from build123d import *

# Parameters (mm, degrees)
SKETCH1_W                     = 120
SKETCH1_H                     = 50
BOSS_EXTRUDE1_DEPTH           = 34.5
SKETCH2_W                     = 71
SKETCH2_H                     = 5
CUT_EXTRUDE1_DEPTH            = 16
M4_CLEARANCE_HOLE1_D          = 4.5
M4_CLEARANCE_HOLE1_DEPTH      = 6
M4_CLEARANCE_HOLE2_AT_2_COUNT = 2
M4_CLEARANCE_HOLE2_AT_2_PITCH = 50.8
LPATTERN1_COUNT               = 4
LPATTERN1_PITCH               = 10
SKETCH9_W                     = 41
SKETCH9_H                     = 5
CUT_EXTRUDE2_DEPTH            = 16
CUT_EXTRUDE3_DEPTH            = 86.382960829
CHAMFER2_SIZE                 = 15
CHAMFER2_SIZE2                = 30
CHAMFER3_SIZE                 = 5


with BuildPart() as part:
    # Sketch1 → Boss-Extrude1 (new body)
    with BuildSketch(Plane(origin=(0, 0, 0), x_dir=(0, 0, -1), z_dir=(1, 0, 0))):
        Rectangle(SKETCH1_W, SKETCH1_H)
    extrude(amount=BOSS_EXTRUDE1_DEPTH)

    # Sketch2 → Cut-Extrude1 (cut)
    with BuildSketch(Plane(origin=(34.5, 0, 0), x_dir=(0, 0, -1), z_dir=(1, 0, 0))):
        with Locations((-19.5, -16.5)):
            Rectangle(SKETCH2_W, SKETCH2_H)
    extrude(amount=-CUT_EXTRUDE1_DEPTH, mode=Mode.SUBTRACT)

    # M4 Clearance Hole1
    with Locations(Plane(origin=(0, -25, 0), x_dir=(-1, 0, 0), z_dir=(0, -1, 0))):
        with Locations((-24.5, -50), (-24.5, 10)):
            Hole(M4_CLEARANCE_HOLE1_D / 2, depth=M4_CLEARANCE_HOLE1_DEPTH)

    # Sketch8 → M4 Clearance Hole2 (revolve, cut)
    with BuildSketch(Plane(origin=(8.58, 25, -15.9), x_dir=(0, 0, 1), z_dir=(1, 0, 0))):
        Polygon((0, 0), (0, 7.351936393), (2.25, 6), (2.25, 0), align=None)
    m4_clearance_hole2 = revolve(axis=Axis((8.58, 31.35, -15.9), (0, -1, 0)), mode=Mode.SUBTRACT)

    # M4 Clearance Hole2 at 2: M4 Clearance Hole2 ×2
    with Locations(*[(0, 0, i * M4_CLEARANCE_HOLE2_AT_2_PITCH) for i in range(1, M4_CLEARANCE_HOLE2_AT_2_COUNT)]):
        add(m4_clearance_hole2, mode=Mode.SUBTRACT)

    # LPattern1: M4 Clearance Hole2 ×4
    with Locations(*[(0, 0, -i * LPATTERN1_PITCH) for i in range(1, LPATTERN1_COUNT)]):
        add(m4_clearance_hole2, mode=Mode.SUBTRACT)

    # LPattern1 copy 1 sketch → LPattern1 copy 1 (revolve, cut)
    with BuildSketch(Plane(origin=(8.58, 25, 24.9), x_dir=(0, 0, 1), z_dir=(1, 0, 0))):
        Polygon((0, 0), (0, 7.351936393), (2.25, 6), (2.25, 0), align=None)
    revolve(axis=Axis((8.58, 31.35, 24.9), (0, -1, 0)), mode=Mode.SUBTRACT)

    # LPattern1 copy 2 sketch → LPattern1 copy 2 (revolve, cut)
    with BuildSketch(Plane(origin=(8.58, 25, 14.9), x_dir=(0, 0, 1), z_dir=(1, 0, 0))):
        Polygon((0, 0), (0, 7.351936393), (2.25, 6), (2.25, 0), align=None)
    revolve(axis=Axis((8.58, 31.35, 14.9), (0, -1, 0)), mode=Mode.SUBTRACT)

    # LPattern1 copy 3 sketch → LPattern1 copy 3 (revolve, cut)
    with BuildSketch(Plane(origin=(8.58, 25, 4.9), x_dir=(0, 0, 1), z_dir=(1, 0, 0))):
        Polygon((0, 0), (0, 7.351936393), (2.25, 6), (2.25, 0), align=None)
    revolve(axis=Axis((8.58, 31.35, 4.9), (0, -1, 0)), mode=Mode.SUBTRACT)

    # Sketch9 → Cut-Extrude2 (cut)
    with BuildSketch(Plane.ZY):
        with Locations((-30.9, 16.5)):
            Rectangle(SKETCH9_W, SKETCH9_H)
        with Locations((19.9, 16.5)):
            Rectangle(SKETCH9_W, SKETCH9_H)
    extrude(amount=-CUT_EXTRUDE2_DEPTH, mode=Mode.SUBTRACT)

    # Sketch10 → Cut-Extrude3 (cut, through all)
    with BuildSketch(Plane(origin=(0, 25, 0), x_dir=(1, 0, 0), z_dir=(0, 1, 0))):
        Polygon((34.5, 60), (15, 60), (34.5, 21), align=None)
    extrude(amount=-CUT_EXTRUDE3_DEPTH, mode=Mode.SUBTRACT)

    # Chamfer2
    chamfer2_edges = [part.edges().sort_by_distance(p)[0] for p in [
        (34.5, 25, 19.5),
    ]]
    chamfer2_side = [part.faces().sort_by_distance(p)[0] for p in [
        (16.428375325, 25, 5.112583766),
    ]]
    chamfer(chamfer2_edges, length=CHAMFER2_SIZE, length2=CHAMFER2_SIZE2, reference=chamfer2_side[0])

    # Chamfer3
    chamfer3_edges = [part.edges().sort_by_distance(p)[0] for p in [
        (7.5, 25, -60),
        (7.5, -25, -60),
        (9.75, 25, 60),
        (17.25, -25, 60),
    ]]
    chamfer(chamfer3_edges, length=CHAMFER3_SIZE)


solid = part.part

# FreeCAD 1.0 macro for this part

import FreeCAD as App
import Part
import Sketcher

V = App.Vector
Q = App.Units.Quantity


def edges_at(feature, points):
    """Names of the edges that pass closest to the given points."""
    edges = feature.Shape.Edges
    near = lambda p: min(range(len(edges)), key=lambda i: edges[i].distToShape(Part.Vertex(*p))[0])
    return sorted({f"Edge{near(p) + 1}" for p in points})

doc = App.newDocument("Part")
body = doc.addObject("PartDesign::Body", "Body")

sketch1 = body.newObject("Sketcher::SketchObject", "Sketch")
sketch1.AttachmentSupport = (doc.getObject("YZ_Plane"), [""])
sketch1.MapMode = "FlatFace"
sketch1.addGeometry(Part.LineSegment(V(25, 60, 0), V(-25, 60, 0)), False)
sketch1.addGeometry(Part.LineSegment(V(-25, 60, 0), V(-25, -60, 0)), False)
sketch1.addGeometry(Part.LineSegment(V(-25, -60, 0), V(25, -60, 0)), False)
sketch1.addGeometry(Part.LineSegment(V(25, -60, 0), V(25, 60, 0)), False)
sketch1.addConstraint(Sketcher.Constraint("Coincident", 0, 2, 1, 1))
sketch1.addConstraint(Sketcher.Constraint("Coincident", 1, 2, 2, 1))
sketch1.addConstraint(Sketcher.Constraint("Coincident", 2, 2, 3, 1))
sketch1.addConstraint(Sketcher.Constraint("Coincident", 3, 2, 0, 1))
sketch1.addConstraint(Sketcher.Constraint("Horizontal", 0))
sketch1.addConstraint(Sketcher.Constraint("Vertical", 1))
sketch1.addConstraint(Sketcher.Constraint("Horizontal", 2))
sketch1.addConstraint(Sketcher.Constraint("Vertical", 3))
sketch1.addConstraint(Sketcher.Constraint("Symmetric", 0, 2, 2, 2, -1, 1))
sketch1.addConstraint(Sketcher.Constraint("DistanceX", 0, 2, 0, 1, Q("50 mm")))
sketch1.addConstraint(Sketcher.Constraint("DistanceY", 1, 2, 1, 1, Q("120 mm")))
pad1 = body.newObject("PartDesign::Pad", "Pad")
pad1.Profile = sketch1
pad1.Length = 34.5

sketch2 = body.newObject("Sketcher::SketchObject", "Sketch001")
sketch2.AttachmentSupport = (doc.getObject("YZ_Plane"), [""])
sketch2.MapMode = "FlatFace"
sketch2.AttachmentOffset = App.Placement(V(0, 0, 34.5), App.Rotation())
sketch2.addGeometry(Part.LineSegment(V(-14, 55, 0), V(-19, 55, 0)), False)
sketch2.addGeometry(Part.LineSegment(V(-19, 55, 0), V(-19, -16, 0)), False)
sketch2.addGeometry(Part.LineSegment(V(-19, -16, 0), V(-14, -16, 0)), False)
sketch2.addGeometry(Part.LineSegment(V(-14, -16, 0), V(-14, 55, 0)), False)
sketch2.addConstraint(Sketcher.Constraint("Coincident", 0, 2, 1, 1))
sketch2.addConstraint(Sketcher.Constraint("Coincident", 1, 2, 2, 1))
sketch2.addConstraint(Sketcher.Constraint("Coincident", 2, 2, 3, 1))
sketch2.addConstraint(Sketcher.Constraint("Coincident", 3, 2, 0, 1))
sketch2.addConstraint(Sketcher.Constraint("Horizontal", 0))
sketch2.addConstraint(Sketcher.Constraint("Vertical", 1))
sketch2.addConstraint(Sketcher.Constraint("Horizontal", 2))
sketch2.addConstraint(Sketcher.Constraint("Vertical", 3))
sketch2.addConstraint(Sketcher.Constraint("DistanceX", 0, 2, 0, 1, Q("5 mm")))
sketch2.addConstraint(Sketcher.Constraint("DistanceY", 1, 2, 1, 1, Q("71 mm")))
sketch2.addConstraint(Sketcher.Constraint("DistanceX", 0, 2, -1, 1, Q("19 mm")))
sketch2.addConstraint(Sketcher.Constraint("DistanceY", -1, 1, 0, 2, Q("55 mm")))
pocket1 = body.newObject("PartDesign::Pocket", "Pocket")
pocket1.Profile = sketch2
pocket1.Length = 16

sketch3 = body.newObject("Sketcher::SketchObject", "Sketch002")
sketch3.AttachmentSupport = (doc.getObject("XZ_Plane"), [""])
sketch3.MapMode = "FlatFace"
sketch3.AttachmentOffset = App.Placement(V(0, 0, 25), App.Rotation())
sketch3.addGeometry(Part.Circle(V(24.5, 50, 0), V(0, 0, 1), 2.2), False)
sketch3.addGeometry(Part.Circle(V(24.5, -10, 0), V(0, 0, 1), 2.2), False)
sketch3.addConstraint(Sketcher.Constraint("Equal", 0, 1))
sketch3.addConstraint(Sketcher.Constraint("Vertical", 0, 3, 1, 3))
sketch3.addConstraint(Sketcher.Constraint("Diameter", 0, Q("4.5 mm")))
sketch3.addConstraint(Sketcher.Constraint("DistanceY", -1, 1, 0, 3, Q("50 mm")))
sketch3.addConstraint(Sketcher.Constraint("DistanceY", 1, 3, -1, 1, Q("10 mm")))
sketch3.addConstraint(Sketcher.Constraint("DistanceX", -1, 1, 0, 3, Q("24.5 mm")))
doc.recompute()
hole = body.newObject("PartDesign::Hole", "Hole")
hole.Profile = sketch3
hole.ThreadType = "None"
hole.Diameter = 4.5
hole.DepthType = "Dimension"
hole.Depth = 6
hole.DrillPoint = "Flat"

sketch4 = body.newObject("Sketcher::SketchObject", "Sketch003")
sketch4.AttachmentSupport = (doc.getObject("YZ_Plane"), [""])
sketch4.MapMode = "FlatFace"
sketch4.AttachmentOffset = App.Placement(V(0, 0, 8.58), App.Rotation())
sketch4.addGeometry(Part.LineSegment(V(17.6, -15.9, 0), V(25, -15.9, 0)), False)
sketch4.addGeometry(Part.LineSegment(V(25, -15.9, 0), V(25, -13.7, 0)), False)
sketch4.addGeometry(Part.LineSegment(V(25, -13.7, 0), V(19, -13.7, 0)), False)
sketch4.addGeometry(Part.LineSegment(V(19, -13.7, 0), V(17.6, -15.9, 0)), False)
sketch4.addGeometry(Part.LineSegment(V(25, -15.9, 0), V(17.6, -15.9, 0)), True)
sketch4.addConstraint(Sketcher.Constraint("Coincident", 0, 2, 1, 1))
sketch4.addConstraint(Sketcher.Constraint("Coincident", 1, 2, 2, 1))
sketch4.addConstraint(Sketcher.Constraint("Coincident", 2, 2, 3, 1))
sketch4.addConstraint(Sketcher.Constraint("Coincident", 3, 2, 0, 1))
sketch4.addConstraint(Sketcher.Constraint("Horizontal", 0))
sketch4.addConstraint(Sketcher.Constraint("Vertical", 1))
sketch4.addConstraint(Sketcher.Constraint("Horizontal", 2))
sketch4.addConstraint(Sketcher.Constraint("Horizontal", 4))
sketch4.addConstraint(Sketcher.Constraint("Coincident", 4, 1, 0, 2))
sketch4.addConstraint(Sketcher.Constraint("Equal", 0, 4))
sketch4.addConstraint(Sketcher.Constraint("DistanceX", 2, 2, 2, 1, Q("6 mm")))
sketch4.addConstraint(Sketcher.Constraint("Angle", 3, Q("-121 deg")))
sketch4.addConstraint(Sketcher.Constraint("DistanceX", -1, 1, 0, 2, Q("25 mm")))
sketch4.addConstraint(Sketcher.Constraint("DistanceY", 1, 1, 1, 2, Q("2.25 mm")))
sketch4.addConstraint(Sketcher.Constraint("DistanceY", 0, 2, -1, 1, Q("15.9 mm")))
groove = body.newObject("PartDesign::Groove", "Groove")
groove.Profile = sketch4
groove.ReferenceAxis = (sketch4, ["Axis0"])
groove.Angle = 360
doc.recompute()

linearpattern = body.newObject("PartDesign::LinearPattern", "LinearPattern")
linearpattern.Originals = [groove]
linearpattern.Direction = (doc.getObject("Z_Axis"), [""])
linearpattern.Mode = "offset"
linearpattern.Offset = 50.8
linearpattern.Occurrences = 2
body.Tip = linearpattern
doc.recompute()

linearpattern2 = body.newObject("PartDesign::LinearPattern", "LinearPattern001")
linearpattern2.Originals = [groove]
linearpattern2.Direction = (doc.getObject("Z_Axis"), [""])
linearpattern2.Mode = "offset"
linearpattern2.Offset = 10
linearpattern2.Occurrences = 4
linearpattern2.Reversed = True
body.Tip = linearpattern2

sketch5 = body.newObject("Sketcher::SketchObject", "Sketch004")
sketch5.AttachmentSupport = (doc.getObject("YZ_Plane"), [""])
sketch5.MapMode = "FlatFace"
sketch5.AttachmentOffset = App.Placement(V(0, 0, 8.58), App.Rotation())
sketch5.addGeometry(Part.LineSegment(V(17.6, 24.9, 0), V(25, 24.9, 0)), False)
sketch5.addGeometry(Part.LineSegment(V(25, 24.9, 0), V(25, 27.1, 0)), False)
sketch5.addGeometry(Part.LineSegment(V(25, 27.1, 0), V(19, 27.1, 0)), False)
sketch5.addGeometry(Part.LineSegment(V(19, 27.1, 0), V(17.6, 24.9, 0)), False)
sketch5.addGeometry(Part.LineSegment(V(25, 24.9, 0), V(17.6, 24.9, 0)), True)
sketch5.addConstraint(Sketcher.Constraint("Coincident", 0, 2, 1, 1))
sketch5.addConstraint(Sketcher.Constraint("Coincident", 1, 2, 2, 1))
sketch5.addConstraint(Sketcher.Constraint("Coincident", 2, 2, 3, 1))
sketch5.addConstraint(Sketcher.Constraint("Coincident", 3, 2, 0, 1))
sketch5.addConstraint(Sketcher.Constraint("Horizontal", 0))
sketch5.addConstraint(Sketcher.Constraint("Vertical", 1))
sketch5.addConstraint(Sketcher.Constraint("Horizontal", 2))
sketch5.addConstraint(Sketcher.Constraint("Horizontal", 4))
sketch5.addConstraint(Sketcher.Constraint("Coincident", 4, 1, 0, 2))
sketch5.addConstraint(Sketcher.Constraint("Equal", 0, 4))
sketch5.addConstraint(Sketcher.Constraint("DistanceX", 2, 2, 2, 1, Q("6 mm")))
sketch5.addConstraint(Sketcher.Constraint("Angle", 3, Q("-121 deg")))
sketch5.addConstraint(Sketcher.Constraint("DistanceX", -1, 1, 0, 2, Q("25 mm")))
sketch5.addConstraint(Sketcher.Constraint("DistanceY", 1, 1, 1, 2, Q("2.25 mm")))
sketch5.addConstraint(Sketcher.Constraint("DistanceY", -1, 1, 0, 2, Q("24.9 mm")))
groove2 = body.newObject("PartDesign::Groove", "Groove001")
groove2.Profile = sketch5
groove2.ReferenceAxis = (sketch5, ["Axis0"])
groove2.Angle = 360

sketch6 = body.newObject("Sketcher::SketchObject", "Sketch005")
sketch6.AttachmentSupport = (doc.getObject("YZ_Plane"), [""])
sketch6.MapMode = "FlatFace"
sketch6.AttachmentOffset = App.Placement(V(0, 0, 8.58), App.Rotation())
sketch6.addGeometry(Part.LineSegment(V(17.6, 14.9, 0), V(25, 14.9, 0)), False)
sketch6.addGeometry(Part.LineSegment(V(25, 14.9, 0), V(25, 17.1, 0)), False)
sketch6.addGeometry(Part.LineSegment(V(25, 17.1, 0), V(19, 17.1, 0)), False)
sketch6.addGeometry(Part.LineSegment(V(19, 17.1, 0), V(17.6, 14.9, 0)), False)
sketch6.addGeometry(Part.LineSegment(V(25, 14.9, 0), V(17.6, 14.9, 0)), True)
sketch6.addConstraint(Sketcher.Constraint("Coincident", 0, 2, 1, 1))
sketch6.addConstraint(Sketcher.Constraint("Coincident", 1, 2, 2, 1))
sketch6.addConstraint(Sketcher.Constraint("Coincident", 2, 2, 3, 1))
sketch6.addConstraint(Sketcher.Constraint("Coincident", 3, 2, 0, 1))
sketch6.addConstraint(Sketcher.Constraint("Horizontal", 0))
sketch6.addConstraint(Sketcher.Constraint("Vertical", 1))
sketch6.addConstraint(Sketcher.Constraint("Horizontal", 2))
sketch6.addConstraint(Sketcher.Constraint("Horizontal", 4))
sketch6.addConstraint(Sketcher.Constraint("Coincident", 4, 1, 0, 2))
sketch6.addConstraint(Sketcher.Constraint("Equal", 0, 4))
sketch6.addConstraint(Sketcher.Constraint("DistanceX", 2, 2, 2, 1, Q("6 mm")))
sketch6.addConstraint(Sketcher.Constraint("Angle", 3, Q("-121 deg")))
sketch6.addConstraint(Sketcher.Constraint("DistanceX", -1, 1, 0, 2, Q("25 mm")))
sketch6.addConstraint(Sketcher.Constraint("DistanceY", 1, 1, 1, 2, Q("2.25 mm")))
sketch6.addConstraint(Sketcher.Constraint("DistanceY", -1, 1, 0, 2, Q("14.9 mm")))
groove3 = body.newObject("PartDesign::Groove", "Groove002")
groove3.Profile = sketch6
groove3.ReferenceAxis = (sketch6, ["Axis0"])
groove3.Angle = 360

sketch7 = body.newObject("Sketcher::SketchObject", "Sketch006")
sketch7.AttachmentSupport = (doc.getObject("YZ_Plane"), [""])
sketch7.MapMode = "FlatFace"
sketch7.AttachmentOffset = App.Placement(V(0, 0, 8.58), App.Rotation())
sketch7.addGeometry(Part.LineSegment(V(17.6, 4.9, 0), V(25, 4.9, 0)), False)
sketch7.addGeometry(Part.LineSegment(V(25, 4.9, 0), V(25, 7.2, 0)), False)
sketch7.addGeometry(Part.LineSegment(V(25, 7.2, 0), V(19, 7.2, 0)), False)
sketch7.addGeometry(Part.LineSegment(V(19, 7.2, 0), V(17.6, 4.9, 0)), False)
sketch7.addGeometry(Part.LineSegment(V(25, 4.9, 0), V(17.6, 4.9, 0)), True)
sketch7.addConstraint(Sketcher.Constraint("Coincident", 0, 2, 1, 1))
sketch7.addConstraint(Sketcher.Constraint("Coincident", 1, 2, 2, 1))
sketch7.addConstraint(Sketcher.Constraint("Coincident", 2, 2, 3, 1))
sketch7.addConstraint(Sketcher.Constraint("Coincident", 3, 2, 0, 1))
sketch7.addConstraint(Sketcher.Constraint("Horizontal", 0))
sketch7.addConstraint(Sketcher.Constraint("Vertical", 1))
sketch7.addConstraint(Sketcher.Constraint("Horizontal", 2))
sketch7.addConstraint(Sketcher.Constraint("Horizontal", 4))
sketch7.addConstraint(Sketcher.Constraint("Coincident", 4, 1, 0, 2))
sketch7.addConstraint(Sketcher.Constraint("Equal", 0, 4))
sketch7.addConstraint(Sketcher.Constraint("DistanceX", 2, 2, 2, 1, Q("6 mm")))
sketch7.addConstraint(Sketcher.Constraint("Angle", 3, Q("-121 deg")))
sketch7.addConstraint(Sketcher.Constraint("DistanceX", -1, 1, 0, 2, Q("25 mm")))
sketch7.addConstraint(Sketcher.Constraint("DistanceY", 1, 1, 1, 2, Q("2.25 mm")))
sketch7.addConstraint(Sketcher.Constraint("DistanceY", -1, 1, 0, 2, Q("4.9 mm")))
groove4 = body.newObject("PartDesign::Groove", "Groove003")
groove4.Profile = sketch7
groove4.ReferenceAxis = (sketch7, ["Axis0"])
groove4.Angle = 360

sketch8 = body.newObject("Sketcher::SketchObject", "Sketch007")
sketch8.AttachmentSupport = (doc.getObject("YZ_Plane"), [""])
sketch8.MapMode = "FlatFace"
sketch8.addGeometry(Part.LineSegment(V(19, -51, 0), V(14, -51, 0)), False)
sketch8.addGeometry(Part.LineSegment(V(14, -51, 0), V(14, -10, 0)), False)
sketch8.addGeometry(Part.LineSegment(V(14, -10, 0), V(19, -10, 0)), False)
sketch8.addGeometry(Part.LineSegment(V(19, -10, 0), V(19, -51, 0)), False)
sketch8.addGeometry(Part.LineSegment(V(19, -1, 0), V(14, -1, 0)), False)
sketch8.addGeometry(Part.LineSegment(V(14, -1, 0), V(14, 40, 0)), False)
sketch8.addGeometry(Part.LineSegment(V(14, 40, 0), V(19, 40, 0)), False)
sketch8.addGeometry(Part.LineSegment(V(19, 40, 0), V(19, -1, 0)), False)
sketch8.addConstraint(Sketcher.Constraint("Coincident", 0, 2, 1, 1))
sketch8.addConstraint(Sketcher.Constraint("Coincident", 1, 2, 2, 1))
sketch8.addConstraint(Sketcher.Constraint("Coincident", 2, 2, 3, 1))
sketch8.addConstraint(Sketcher.Constraint("Coincident", 3, 2, 0, 1))
sketch8.addConstraint(Sketcher.Constraint("Coincident", 4, 2, 5, 1))
sketch8.addConstraint(Sketcher.Constraint("Coincident", 5, 2, 6, 1))
sketch8.addConstraint(Sketcher.Constraint("Coincident", 6, 2, 7, 1))
sketch8.addConstraint(Sketcher.Constraint("Coincident", 7, 2, 4, 1))
sketch8.addConstraint(Sketcher.Constraint("Horizontal", 0))
sketch8.addConstraint(Sketcher.Constraint("Vertical", 1))
sketch8.addConstraint(Sketcher.Constraint("Horizontal", 2))
sketch8.addConstraint(Sketcher.Constraint("Vertical", 3))
sketch8.addConstraint(Sketcher.Constraint("Horizontal", 4))
sketch8.addConstraint(Sketcher.Constraint("Vertical", 5))
sketch8.addConstraint(Sketcher.Constraint("Horizontal", 6))
sketch8.addConstraint(Sketcher.Constraint("Vertical", 7))
sketch8.addConstraint(Sketcher.Constraint("Vertical", 1, 2, 4, 2))
sketch8.addConstraint(Sketcher.Constraint("Vertical", 3, 2, 6, 2))
sketch8.addConstraint(Sketcher.Constraint("Equal", 3, 5))
sketch8.addConstraint(Sketcher.Constraint("DistanceX", 0, 2, 0, 1, Q("5 mm")))
sketch8.addConstraint(Sketcher.Constraint("DistanceY", 1, 1, 1, 2, Q("41 mm")))
sketch8.addConstraint(Sketcher.Constraint("DistanceX", -1, 1, 0, 2, Q("14 mm")))
sketch8.addConstraint(Sketcher.Constraint("DistanceY", 0, 2, -1, 1, Q("51.4 mm")))
sketch8.addConstraint(Sketcher.Constraint("DistanceY", 4, 2, -1, 1, Q("0.6 mm")))
pocket2 = body.newObject("PartDesign::Pocket", "Pocket001")
pocket2.Profile = sketch8
pocket2.Length = 16
pocket2.Reversed = True

sketch9 = body.newObject("Sketcher::SketchObject", "Sketch008")
sketch9.AttachmentSupport = (doc.getObject("XZ_Plane"), [""])
sketch9.MapMode = "FlatFace"
sketch9.AttachmentOffset = App.Placement(V(0, 0, -25), App.Rotation())
sketch9.addGeometry(Part.LineSegment(V(34, -60, 0), V(15, -60, 0)), False)
sketch9.addGeometry(Part.LineSegment(V(15, -60, 0), V(34, -21, 0)), False)
sketch9.addGeometry(Part.LineSegment(V(34, -21, 0), V(34, -60, 0)), False)
sketch9.addConstraint(Sketcher.Constraint("Coincident", 0, 2, 1, 1))
sketch9.addConstraint(Sketcher.Constraint("Coincident", 1, 2, 2, 1))
sketch9.addConstraint(Sketcher.Constraint("Coincident", 2, 2, 0, 1))
sketch9.addConstraint(Sketcher.Constraint("Horizontal", 0))
sketch9.addConstraint(Sketcher.Constraint("Vertical", 2))
sketch9.addConstraint(Sketcher.Constraint("DistanceY", 2, 2, 2, 1, Q("39 mm")))
sketch9.addConstraint(Sketcher.Constraint("DistanceX", 0, 2, 0, 1, Q("19.5 mm")))
sketch9.addConstraint(Sketcher.Constraint("DistanceX", -1, 1, 0, 2, Q("15 mm")))
sketch9.addConstraint(Sketcher.Constraint("DistanceY", 0, 2, -1, 1, Q("60 mm")))
pocket3 = body.newObject("PartDesign::Pocket", "Pocket002")
pocket3.Profile = sketch9
pocket3.Type = "ThroughAll"
pocket3.Reversed = True
doc.recompute()

chamfer = body.newObject("PartDesign::Chamfer", "Chamfer")
chamfer.Base = (pocket3, edges_at(pocket3, [(34.5, 25, 19.5)]))
chamfer.ChamferType = "Two distances"
chamfer.Size = 15
chamfer.Size2 = 30
doc.recompute()

chamfer2 = body.newObject("PartDesign::Chamfer", "Chamfer001")
chamfer2.Base = (chamfer, edges_at(chamfer, [
    (7.5, 25, -60),
    (7.5, -25, -60),
    (9.75, 25, 60),
    (17.25, -25, 60),
]))
chamfer2.Size = 5

doc.recompute()
